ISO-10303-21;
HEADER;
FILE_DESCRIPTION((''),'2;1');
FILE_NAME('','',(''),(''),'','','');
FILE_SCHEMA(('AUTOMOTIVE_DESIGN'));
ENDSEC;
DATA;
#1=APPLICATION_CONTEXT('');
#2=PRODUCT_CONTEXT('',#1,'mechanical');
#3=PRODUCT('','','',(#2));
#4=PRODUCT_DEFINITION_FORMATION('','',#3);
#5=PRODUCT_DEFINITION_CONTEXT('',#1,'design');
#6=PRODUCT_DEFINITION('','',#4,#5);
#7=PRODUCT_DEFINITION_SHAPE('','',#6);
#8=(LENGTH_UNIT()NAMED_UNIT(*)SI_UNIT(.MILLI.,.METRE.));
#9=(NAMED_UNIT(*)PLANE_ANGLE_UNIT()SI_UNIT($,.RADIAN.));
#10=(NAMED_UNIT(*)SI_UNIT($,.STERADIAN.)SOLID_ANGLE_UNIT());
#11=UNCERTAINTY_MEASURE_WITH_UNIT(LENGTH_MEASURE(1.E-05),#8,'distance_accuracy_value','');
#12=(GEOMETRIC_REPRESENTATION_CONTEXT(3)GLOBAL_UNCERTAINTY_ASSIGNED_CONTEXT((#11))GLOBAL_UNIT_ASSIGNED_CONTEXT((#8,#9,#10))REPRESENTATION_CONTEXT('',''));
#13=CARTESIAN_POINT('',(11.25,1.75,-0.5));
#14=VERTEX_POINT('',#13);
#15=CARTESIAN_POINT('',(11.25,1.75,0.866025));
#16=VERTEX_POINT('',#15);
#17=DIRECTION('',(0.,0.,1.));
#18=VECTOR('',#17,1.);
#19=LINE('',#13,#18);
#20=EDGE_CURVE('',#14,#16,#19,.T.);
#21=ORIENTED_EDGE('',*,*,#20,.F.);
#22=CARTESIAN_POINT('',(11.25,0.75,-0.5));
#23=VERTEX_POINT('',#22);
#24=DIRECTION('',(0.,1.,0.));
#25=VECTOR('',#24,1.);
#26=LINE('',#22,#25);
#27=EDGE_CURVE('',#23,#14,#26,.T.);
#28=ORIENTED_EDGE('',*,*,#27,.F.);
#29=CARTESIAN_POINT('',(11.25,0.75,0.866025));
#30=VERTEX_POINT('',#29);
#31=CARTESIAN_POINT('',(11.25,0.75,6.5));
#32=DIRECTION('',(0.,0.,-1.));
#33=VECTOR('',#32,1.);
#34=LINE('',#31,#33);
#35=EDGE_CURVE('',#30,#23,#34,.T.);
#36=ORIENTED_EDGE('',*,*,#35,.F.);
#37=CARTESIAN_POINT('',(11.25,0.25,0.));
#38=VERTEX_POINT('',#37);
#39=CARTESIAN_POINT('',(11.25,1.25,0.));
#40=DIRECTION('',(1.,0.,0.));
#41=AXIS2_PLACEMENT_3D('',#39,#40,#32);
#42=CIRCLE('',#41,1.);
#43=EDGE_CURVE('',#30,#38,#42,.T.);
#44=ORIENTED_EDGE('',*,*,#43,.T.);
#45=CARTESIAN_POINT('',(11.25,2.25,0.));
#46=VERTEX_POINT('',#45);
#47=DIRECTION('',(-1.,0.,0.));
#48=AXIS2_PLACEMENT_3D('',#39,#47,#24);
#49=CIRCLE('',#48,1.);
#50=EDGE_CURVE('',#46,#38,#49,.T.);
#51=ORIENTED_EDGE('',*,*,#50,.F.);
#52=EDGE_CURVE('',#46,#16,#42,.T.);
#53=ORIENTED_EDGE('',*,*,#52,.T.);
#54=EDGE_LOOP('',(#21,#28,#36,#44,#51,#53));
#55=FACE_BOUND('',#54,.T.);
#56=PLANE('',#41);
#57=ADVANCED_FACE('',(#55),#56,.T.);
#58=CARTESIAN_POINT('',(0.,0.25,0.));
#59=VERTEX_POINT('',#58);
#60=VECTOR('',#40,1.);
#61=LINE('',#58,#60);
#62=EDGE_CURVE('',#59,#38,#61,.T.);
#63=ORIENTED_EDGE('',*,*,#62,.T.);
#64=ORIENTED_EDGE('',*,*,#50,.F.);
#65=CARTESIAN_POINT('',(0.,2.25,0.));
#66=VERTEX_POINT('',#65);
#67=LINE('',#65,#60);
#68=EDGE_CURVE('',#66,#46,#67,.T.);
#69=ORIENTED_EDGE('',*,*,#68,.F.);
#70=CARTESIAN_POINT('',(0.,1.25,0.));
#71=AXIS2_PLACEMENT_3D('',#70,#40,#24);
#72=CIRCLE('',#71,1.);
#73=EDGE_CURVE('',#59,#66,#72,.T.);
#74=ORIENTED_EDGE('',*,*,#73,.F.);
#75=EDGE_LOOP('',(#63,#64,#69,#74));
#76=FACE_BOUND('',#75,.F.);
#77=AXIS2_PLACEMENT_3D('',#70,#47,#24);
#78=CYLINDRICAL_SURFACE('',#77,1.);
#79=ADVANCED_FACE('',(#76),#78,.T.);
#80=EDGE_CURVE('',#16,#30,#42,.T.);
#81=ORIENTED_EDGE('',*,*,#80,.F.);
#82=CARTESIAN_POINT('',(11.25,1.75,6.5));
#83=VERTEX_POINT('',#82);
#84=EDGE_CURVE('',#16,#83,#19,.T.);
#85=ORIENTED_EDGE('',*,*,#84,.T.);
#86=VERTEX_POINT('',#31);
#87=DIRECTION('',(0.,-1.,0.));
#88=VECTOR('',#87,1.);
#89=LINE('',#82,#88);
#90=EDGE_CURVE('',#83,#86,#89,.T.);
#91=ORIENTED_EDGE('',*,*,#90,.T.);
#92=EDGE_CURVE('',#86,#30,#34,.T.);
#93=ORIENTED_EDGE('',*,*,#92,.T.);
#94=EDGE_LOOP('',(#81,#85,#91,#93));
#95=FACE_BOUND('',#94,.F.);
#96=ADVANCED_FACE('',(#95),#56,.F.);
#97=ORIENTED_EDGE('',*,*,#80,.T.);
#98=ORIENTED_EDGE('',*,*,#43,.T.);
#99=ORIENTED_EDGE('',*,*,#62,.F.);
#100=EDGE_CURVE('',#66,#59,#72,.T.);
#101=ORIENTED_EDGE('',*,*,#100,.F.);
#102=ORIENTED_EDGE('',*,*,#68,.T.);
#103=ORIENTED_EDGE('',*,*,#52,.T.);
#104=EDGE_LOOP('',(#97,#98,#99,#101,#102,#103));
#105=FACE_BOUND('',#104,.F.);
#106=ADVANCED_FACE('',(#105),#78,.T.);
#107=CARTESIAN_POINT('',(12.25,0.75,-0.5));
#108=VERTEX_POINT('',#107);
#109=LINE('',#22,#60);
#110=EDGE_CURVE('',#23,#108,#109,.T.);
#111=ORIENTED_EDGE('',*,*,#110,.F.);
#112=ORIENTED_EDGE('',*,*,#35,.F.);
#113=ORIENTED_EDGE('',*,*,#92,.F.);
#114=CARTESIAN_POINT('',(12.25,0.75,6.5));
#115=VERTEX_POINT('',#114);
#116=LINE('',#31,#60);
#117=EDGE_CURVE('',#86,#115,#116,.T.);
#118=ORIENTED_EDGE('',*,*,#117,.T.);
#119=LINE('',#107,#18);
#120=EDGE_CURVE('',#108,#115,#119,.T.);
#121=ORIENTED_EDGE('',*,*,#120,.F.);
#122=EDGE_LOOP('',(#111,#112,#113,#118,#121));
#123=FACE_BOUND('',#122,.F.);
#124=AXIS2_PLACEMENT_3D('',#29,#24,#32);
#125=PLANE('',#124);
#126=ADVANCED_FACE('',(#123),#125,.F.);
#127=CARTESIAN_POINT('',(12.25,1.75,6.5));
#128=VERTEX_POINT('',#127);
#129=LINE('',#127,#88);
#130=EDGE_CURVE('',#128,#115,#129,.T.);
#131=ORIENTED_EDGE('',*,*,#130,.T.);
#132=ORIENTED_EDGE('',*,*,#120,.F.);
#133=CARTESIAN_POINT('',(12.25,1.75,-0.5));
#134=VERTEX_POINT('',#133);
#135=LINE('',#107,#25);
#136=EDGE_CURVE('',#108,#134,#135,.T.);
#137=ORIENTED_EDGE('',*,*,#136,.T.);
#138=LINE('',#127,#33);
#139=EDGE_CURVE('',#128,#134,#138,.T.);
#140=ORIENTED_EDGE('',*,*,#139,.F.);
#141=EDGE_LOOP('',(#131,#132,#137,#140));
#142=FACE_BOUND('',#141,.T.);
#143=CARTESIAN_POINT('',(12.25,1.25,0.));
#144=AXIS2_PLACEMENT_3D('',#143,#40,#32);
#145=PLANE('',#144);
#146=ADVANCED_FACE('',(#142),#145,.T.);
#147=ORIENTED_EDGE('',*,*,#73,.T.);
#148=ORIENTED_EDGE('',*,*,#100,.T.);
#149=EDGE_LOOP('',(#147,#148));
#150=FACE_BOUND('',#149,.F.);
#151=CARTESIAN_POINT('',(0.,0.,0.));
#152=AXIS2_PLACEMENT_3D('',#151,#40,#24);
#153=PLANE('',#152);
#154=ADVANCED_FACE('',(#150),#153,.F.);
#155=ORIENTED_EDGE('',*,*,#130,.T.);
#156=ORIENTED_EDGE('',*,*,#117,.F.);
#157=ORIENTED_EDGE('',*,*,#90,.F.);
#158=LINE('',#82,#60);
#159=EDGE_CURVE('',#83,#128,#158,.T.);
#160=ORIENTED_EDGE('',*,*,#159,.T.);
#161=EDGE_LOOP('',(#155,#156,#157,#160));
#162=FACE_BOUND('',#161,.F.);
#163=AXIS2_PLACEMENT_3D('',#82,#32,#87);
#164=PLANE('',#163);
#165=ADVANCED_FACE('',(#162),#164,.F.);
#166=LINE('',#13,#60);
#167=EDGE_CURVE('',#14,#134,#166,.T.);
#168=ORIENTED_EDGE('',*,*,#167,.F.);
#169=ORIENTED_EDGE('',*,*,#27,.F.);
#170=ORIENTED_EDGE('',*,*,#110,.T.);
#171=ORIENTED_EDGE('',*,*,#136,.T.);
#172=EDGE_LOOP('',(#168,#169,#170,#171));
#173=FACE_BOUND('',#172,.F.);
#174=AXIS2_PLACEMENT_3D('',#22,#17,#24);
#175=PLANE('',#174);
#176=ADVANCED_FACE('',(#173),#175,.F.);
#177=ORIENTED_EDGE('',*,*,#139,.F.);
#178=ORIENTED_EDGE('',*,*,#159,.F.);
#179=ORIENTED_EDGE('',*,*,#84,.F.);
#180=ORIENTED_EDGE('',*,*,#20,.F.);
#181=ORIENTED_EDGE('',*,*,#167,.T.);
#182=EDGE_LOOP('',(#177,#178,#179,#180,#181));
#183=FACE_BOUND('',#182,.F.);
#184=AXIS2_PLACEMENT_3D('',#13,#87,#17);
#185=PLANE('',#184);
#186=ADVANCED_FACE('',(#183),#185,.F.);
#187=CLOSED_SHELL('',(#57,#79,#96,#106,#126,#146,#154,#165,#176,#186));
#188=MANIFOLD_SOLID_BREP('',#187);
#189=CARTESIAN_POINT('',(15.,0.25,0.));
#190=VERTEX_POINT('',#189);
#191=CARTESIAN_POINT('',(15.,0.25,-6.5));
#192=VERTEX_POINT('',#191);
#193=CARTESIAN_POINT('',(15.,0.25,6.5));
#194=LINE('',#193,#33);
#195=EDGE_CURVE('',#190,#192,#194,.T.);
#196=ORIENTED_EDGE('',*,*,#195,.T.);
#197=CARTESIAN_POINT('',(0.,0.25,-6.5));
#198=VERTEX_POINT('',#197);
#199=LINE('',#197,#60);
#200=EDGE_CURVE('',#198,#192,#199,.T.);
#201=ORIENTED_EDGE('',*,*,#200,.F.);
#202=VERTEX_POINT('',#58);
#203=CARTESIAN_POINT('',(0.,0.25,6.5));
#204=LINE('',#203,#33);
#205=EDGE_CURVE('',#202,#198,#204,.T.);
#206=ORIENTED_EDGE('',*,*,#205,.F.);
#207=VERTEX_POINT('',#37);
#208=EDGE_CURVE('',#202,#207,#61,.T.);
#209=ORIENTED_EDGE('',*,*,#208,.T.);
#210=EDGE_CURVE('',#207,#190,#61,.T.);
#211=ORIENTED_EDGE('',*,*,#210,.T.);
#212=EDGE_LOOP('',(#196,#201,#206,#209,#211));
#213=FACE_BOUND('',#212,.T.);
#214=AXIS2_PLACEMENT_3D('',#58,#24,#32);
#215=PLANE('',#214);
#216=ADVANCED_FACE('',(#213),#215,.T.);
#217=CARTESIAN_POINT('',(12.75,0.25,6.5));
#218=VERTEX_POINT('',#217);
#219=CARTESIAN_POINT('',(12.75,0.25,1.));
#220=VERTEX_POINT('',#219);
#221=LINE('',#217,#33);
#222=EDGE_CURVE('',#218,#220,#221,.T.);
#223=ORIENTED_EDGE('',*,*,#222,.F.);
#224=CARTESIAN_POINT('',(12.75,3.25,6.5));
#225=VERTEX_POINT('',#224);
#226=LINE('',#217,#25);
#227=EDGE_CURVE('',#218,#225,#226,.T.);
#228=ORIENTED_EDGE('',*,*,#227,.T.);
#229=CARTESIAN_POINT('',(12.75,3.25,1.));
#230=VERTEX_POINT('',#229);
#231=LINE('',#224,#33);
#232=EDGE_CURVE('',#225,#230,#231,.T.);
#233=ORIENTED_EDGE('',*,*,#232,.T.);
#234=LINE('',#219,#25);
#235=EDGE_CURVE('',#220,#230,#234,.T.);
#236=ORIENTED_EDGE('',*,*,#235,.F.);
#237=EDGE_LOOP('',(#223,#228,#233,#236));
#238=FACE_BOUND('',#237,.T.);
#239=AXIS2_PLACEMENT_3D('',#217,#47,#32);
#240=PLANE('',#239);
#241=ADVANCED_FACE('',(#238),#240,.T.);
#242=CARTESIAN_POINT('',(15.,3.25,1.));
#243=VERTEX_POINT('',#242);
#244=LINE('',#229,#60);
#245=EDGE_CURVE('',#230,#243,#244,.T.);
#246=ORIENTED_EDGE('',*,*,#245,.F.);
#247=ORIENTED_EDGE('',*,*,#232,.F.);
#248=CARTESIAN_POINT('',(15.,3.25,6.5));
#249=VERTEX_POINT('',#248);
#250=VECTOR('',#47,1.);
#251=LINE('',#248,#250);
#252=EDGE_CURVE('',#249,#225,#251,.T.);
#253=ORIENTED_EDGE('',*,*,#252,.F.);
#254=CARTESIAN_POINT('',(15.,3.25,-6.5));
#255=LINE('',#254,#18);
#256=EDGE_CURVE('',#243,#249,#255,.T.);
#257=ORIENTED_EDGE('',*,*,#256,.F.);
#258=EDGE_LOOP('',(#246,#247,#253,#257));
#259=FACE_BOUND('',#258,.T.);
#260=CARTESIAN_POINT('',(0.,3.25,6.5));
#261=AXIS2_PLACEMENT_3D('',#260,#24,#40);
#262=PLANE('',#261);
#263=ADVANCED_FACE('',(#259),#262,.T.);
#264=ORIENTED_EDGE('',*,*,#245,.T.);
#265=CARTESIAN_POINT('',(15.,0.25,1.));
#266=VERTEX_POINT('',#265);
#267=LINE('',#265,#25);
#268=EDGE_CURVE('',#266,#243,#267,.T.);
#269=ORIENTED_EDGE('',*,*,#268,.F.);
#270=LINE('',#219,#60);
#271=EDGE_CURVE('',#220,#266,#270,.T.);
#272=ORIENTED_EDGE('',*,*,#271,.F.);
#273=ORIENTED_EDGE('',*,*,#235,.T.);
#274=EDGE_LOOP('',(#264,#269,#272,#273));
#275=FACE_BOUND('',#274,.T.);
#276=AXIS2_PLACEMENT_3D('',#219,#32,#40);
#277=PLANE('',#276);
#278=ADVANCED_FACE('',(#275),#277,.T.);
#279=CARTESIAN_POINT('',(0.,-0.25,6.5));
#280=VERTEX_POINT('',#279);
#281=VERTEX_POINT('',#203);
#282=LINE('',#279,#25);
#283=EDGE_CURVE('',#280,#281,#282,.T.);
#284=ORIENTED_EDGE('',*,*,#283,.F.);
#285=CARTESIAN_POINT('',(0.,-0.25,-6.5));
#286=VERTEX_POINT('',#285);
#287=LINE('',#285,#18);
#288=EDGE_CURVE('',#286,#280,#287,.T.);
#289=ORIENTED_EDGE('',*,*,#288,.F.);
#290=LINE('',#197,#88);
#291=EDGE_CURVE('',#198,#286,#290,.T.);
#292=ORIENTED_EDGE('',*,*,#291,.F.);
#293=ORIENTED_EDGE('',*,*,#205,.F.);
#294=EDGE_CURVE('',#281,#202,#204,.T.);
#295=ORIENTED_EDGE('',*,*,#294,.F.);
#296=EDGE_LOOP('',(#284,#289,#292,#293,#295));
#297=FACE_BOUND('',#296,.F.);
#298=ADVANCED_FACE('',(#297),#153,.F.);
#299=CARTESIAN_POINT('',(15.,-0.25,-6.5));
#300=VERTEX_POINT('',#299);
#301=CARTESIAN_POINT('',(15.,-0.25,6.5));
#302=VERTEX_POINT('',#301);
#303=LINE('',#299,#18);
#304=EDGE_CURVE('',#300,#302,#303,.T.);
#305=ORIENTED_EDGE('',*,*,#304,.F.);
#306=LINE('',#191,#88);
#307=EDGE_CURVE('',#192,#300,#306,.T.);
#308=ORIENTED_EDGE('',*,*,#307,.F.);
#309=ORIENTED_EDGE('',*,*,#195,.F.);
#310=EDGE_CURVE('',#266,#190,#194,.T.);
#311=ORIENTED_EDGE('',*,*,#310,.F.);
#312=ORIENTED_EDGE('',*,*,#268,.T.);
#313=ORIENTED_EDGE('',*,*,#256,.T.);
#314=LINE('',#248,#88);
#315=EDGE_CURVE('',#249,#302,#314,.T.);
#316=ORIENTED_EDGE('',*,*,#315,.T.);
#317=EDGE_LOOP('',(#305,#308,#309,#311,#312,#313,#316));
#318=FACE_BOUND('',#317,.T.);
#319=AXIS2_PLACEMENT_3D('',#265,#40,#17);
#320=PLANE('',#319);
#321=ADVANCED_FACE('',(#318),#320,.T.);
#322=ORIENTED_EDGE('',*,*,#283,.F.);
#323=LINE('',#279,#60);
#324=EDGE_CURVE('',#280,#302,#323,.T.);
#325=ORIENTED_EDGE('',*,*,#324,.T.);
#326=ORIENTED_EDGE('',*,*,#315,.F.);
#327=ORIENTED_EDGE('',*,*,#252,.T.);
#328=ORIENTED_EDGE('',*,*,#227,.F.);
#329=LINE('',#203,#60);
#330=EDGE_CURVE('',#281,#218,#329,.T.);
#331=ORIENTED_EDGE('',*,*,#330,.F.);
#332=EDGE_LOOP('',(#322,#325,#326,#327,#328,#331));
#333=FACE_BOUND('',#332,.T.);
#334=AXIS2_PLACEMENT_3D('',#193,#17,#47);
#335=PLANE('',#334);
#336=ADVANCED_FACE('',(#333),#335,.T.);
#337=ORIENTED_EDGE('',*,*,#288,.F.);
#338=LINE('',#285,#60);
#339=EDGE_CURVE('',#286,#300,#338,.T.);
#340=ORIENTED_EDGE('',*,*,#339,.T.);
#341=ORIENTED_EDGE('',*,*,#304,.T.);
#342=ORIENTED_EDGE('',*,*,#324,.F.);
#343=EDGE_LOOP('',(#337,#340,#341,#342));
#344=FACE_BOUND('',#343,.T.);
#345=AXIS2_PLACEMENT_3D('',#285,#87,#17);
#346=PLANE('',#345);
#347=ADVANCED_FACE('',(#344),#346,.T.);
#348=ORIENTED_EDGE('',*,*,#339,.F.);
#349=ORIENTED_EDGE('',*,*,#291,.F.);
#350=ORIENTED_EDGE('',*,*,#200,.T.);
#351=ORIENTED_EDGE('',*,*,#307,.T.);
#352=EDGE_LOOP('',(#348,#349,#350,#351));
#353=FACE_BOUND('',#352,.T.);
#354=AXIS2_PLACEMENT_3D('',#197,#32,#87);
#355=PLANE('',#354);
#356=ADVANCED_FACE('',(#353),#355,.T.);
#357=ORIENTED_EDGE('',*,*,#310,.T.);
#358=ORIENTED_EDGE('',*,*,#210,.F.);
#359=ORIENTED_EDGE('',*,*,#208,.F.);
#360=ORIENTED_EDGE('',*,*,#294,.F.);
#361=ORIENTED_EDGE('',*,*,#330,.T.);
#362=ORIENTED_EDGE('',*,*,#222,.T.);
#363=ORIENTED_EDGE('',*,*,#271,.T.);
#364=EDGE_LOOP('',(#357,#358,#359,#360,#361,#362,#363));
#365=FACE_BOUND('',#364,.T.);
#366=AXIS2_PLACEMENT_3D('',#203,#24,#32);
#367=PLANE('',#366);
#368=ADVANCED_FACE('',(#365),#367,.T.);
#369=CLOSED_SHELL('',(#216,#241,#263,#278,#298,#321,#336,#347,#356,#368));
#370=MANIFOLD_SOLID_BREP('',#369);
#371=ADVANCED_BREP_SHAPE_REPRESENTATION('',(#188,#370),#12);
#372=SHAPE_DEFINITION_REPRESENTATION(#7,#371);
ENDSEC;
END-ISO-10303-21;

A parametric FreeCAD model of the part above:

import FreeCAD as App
import Part
import Sketcher
from FreeCAD import Vector

doc = App.newDocument("Part")
params = doc.addObject("Spreadsheet::Sheet", "Params")
for row, (alias, value) in enumerate([
    ("sketch1_diameter", "2 mm"),
    ("sketch1_height", "13 mm"),
    ("sketch1_width", "0.5 mm"),
    ("pad1_length", "15 mm"),
    ("sketch2_diameter", "2 mm"),
    ("pocket1_length", "3.75 mm"),
    ("sketch3_width", "1 mm"),
    ("sketch3_height", "7 mm"),
    ("pad2_length", "1 mm"),
    ("sketch4_height", "5.5 mm"),
    ("sketch4_width", "2.25 mm"),
    ("pad3_length", "3 mm"),
], start=1):
    params.set(f"A{row}", alias)
    params.set(f"B{row}", "=" + value)
    params.setAlias(f"B{row}", alias)

body = doc.addObject("PartDesign::Body", "Body")
body.AllowCompound = True

# Sketch on YZ plane
sketch1 = body.newObject("Sketcher::SketchObject", "Sketch")
sketch1.AttachmentSupport = (doc.getObject("YZ_Plane"), [""])
sketch1.MapMode = "FlatFace"
sketch1.addGeometry([
    Part.Circle(Vector(1.2, 0, 0), Vector(0, 0, 1), 1),  # 0
    Part.LineSegment(Vector(0.2, 6.5, 0), Vector(-0.2, 6.5, 0)),  # 1
    Part.LineSegment(Vector(-0.2, 6.5, 0), Vector(-0.2, -6.5, 0)),  # 2
    Part.LineSegment(Vector(-0.2, -6.5, 0), Vector(0.2, -6.5, 0)),  # 3
    Part.LineSegment(Vector(0.2, -6.5, 0), Vector(0.2, 0, 0)),  # 4
    Part.LineSegment(Vector(0.2, 0, 0), Vector(0.2, 6.5, 0)),  # 5
], False)
sketch1.addConstraint([
    Sketcher.Constraint("Coincident", 1, 2, 2, 1),
    Sketcher.Constraint("Coincident", 2, 2, 3, 1),
    Sketcher.Constraint("Coincident", 3, 2, 4, 1),
    Sketcher.Constraint("Coincident", 4, 2, 5, 1),
    Sketcher.Constraint("Coincident", 5, 2, 1, 1),
    Sketcher.Constraint("Horizontal", 1),
    Sketcher.Constraint("Vertical", 2),
    Sketcher.Constraint("Horizontal", 3),
    Sketcher.Constraint("Vertical", 4),
    Sketcher.Constraint("Vertical", 5),
    Sketcher.Constraint("Symmetric", 1, 2, 3, 2, -1, 1),
    Sketcher.Constraint("PointOnObject", 0, 3, -1),
    Sketcher.Constraint("PointOnObject", 4, 2, -1),
    Sketcher.Constraint("Diameter", 0, 2.0),
    Sketcher.Constraint("DistanceY", 2, 2, 2, 1, 13.0),
    Sketcher.Constraint("DistanceX", 1, 2, 1, 1, 0.5),
    Sketcher.Constraint("DistanceX", 3, 2, 0, 3, 1.0),
])
sketch1.setExpression("Constraints[13]", "Params.sketch1_diameter")
sketch1.setExpression("Constraints[14]", "Params.sketch1_height")
sketch1.setExpression("Constraints[15]", "Params.sketch1_width")
pad1 = body.newObject("PartDesign::Pad", "Pad")
pad1.Profile = sketch1
pad1.setExpression("Length", "Params.pad1_length")

# Sketch on YZ plane
sketch2 = body.newObject("Sketcher::SketchObject", "Sketch001")
sketch2.AttachmentSupport = (doc.getObject("YZ_Plane"), [""])
sketch2.MapMode = "FlatFace"
sketch2.AttachmentOffset = App.Placement(Vector(0, 0, 15), App.Rotation())
sketch2.addGeometry(Part.Circle(Vector(1.2, 0, 0), Vector(0, 0, 1), 1), False)
sketch2.addConstraint([
    Sketcher.Constraint("PointOnObject", 0, 3, -1),
    Sketcher.Constraint("Diameter", 0, 2.0),
    Sketcher.Constraint("DistanceX", -1, 1, 0, 3, 1.25),
])
sketch2.setExpression("Constraints[1]", "Params.sketch2_diameter")
pocket1 = body.newObject("PartDesign::Pocket", "Pocket")
pocket1.Profile = sketch2
pocket1.setExpression("Length", "Params.pocket1_length")

# Sketch on YZ plane
sketch3 = body.newObject("Sketcher::SketchObject", "Sketch002")
sketch3.AttachmentSupport = (doc.getObject("YZ_Plane"), [""])
sketch3.MapMode = "FlatFace"
sketch3.AttachmentOffset = App.Placement(Vector(0, 0, 11.25), App.Rotation())
sketch3.addGeometry([
    Part.LineSegment(Vector(0.8, -0.5, 0), Vector(1.8, -0.5, 0)),
    Part.LineSegment(Vector(1.8, -0.5, 0), Vector(1.8, 6.5, 0)),
    Part.LineSegment(Vector(1.8, 6.5, 0), Vector(0.8, 6.5, 0)),
    Part.LineSegment(Vector(0.8, 6.5, 0), Vector(0.8, -0.5, 0)),
], False)
sketch3.addConstraint([
    Sketcher.Constraint("Coincident", 0, 2, 1, 1),
    Sketcher.Constraint("Coincident", 1, 2, 2, 1),
    Sketcher.Constraint("Coincident", 2, 2, 3, 1),
    Sketcher.Constraint("Coincident", 3, 2, 0, 1),
    Sketcher.Constraint("Horizontal", 0),
    Sketcher.Constraint("Vertical", 1),
    Sketcher.Constraint("Horizontal", 2),
    Sketcher.Constraint("Vertical", 3),
    Sketcher.Constraint("DistanceX", 0, 1, 0, 2, 1.0),
    Sketcher.Constraint("DistanceY", 0, 2, -1, 1, 0.5),
    Sketcher.Constraint("DistanceY", 1, 1, 1, 2, 7.0),
    Sketcher.Constraint("DistanceX", -1, 1, 0, 2, 1.75),
])
sketch3.setExpression("Constraints[8]", "Params.sketch3_width")
sketch3.setExpression("Constraints[10]", "Params.sketch3_height")
pad2 = body.newObject("PartDesign::Pad", "Pad001")
pad2.Profile = sketch3
pad2.setExpression("Length", "Params.pad2_length")

# Sketch on XZ plane
sketch4 = body.newObject("Sketcher::SketchObject", "Sketch003")
sketch4.AttachmentSupport = (doc.getObject("XZ_Plane"), [""])
sketch4.MapMode = "FlatFace"
sketch4.AttachmentOffset = App.Placement(Vector(0, 0, -0.25), App.Rotation())
sketch4.addGeometry([
    Part.LineSegment(Vector(15, 6.5, 0), Vector(15, 1, 0)),
    Part.LineSegment(Vector(15, 1, 0), Vector(12.8, 1, 0)),
    Part.LineSegment(Vector(12.8, 1, 0), Vector(12.8, 6.5, 0)),
    Part.LineSegment(Vector(12.8, 6.5, 0), Vector(15, 6.5, 0)),
], False)
sketch4.addConstraint([
    Sketcher.Constraint("Coincident", 0, 2, 1, 1),
    Sketcher.Constraint("Coincident", 1, 2, 2, 1),
    Sketcher.Constraint("Coincident", 2, 2, 3, 1),
    Sketcher.Constraint("Coincident", 3, 2, 0, 1),
    Sketcher.Constraint("Vertical", 0),
    Sketcher.Constraint("Horizontal", 1),
    Sketcher.Constraint("Vertical", 2),
    Sketcher.Constraint("Horizontal", 3),
    Sketcher.Constraint("DistanceY", -1, 1, 0, 2, 1.0),
    Sketcher.Constraint("DistanceY", 0, 2, 0, 1, 5.5),
    Sketcher.Constraint("DistanceX", -1, 1, 0, 2, 15.0),
    Sketcher.Constraint("DistanceX", 1, 2, 1, 1, 2.25),
])
sketch4.setExpression("Constraints[9]", "Params.sketch4_height")
sketch4.setExpression("Constraints[11]", "Params.sketch4_width")
pad3 = body.newObject("PartDesign::Pad", "Pad002")
pad3.Profile = sketch4
pad3.setExpression("Length", "Params.pad3_length")
pad3.Reversed = True

doc.recompute()
